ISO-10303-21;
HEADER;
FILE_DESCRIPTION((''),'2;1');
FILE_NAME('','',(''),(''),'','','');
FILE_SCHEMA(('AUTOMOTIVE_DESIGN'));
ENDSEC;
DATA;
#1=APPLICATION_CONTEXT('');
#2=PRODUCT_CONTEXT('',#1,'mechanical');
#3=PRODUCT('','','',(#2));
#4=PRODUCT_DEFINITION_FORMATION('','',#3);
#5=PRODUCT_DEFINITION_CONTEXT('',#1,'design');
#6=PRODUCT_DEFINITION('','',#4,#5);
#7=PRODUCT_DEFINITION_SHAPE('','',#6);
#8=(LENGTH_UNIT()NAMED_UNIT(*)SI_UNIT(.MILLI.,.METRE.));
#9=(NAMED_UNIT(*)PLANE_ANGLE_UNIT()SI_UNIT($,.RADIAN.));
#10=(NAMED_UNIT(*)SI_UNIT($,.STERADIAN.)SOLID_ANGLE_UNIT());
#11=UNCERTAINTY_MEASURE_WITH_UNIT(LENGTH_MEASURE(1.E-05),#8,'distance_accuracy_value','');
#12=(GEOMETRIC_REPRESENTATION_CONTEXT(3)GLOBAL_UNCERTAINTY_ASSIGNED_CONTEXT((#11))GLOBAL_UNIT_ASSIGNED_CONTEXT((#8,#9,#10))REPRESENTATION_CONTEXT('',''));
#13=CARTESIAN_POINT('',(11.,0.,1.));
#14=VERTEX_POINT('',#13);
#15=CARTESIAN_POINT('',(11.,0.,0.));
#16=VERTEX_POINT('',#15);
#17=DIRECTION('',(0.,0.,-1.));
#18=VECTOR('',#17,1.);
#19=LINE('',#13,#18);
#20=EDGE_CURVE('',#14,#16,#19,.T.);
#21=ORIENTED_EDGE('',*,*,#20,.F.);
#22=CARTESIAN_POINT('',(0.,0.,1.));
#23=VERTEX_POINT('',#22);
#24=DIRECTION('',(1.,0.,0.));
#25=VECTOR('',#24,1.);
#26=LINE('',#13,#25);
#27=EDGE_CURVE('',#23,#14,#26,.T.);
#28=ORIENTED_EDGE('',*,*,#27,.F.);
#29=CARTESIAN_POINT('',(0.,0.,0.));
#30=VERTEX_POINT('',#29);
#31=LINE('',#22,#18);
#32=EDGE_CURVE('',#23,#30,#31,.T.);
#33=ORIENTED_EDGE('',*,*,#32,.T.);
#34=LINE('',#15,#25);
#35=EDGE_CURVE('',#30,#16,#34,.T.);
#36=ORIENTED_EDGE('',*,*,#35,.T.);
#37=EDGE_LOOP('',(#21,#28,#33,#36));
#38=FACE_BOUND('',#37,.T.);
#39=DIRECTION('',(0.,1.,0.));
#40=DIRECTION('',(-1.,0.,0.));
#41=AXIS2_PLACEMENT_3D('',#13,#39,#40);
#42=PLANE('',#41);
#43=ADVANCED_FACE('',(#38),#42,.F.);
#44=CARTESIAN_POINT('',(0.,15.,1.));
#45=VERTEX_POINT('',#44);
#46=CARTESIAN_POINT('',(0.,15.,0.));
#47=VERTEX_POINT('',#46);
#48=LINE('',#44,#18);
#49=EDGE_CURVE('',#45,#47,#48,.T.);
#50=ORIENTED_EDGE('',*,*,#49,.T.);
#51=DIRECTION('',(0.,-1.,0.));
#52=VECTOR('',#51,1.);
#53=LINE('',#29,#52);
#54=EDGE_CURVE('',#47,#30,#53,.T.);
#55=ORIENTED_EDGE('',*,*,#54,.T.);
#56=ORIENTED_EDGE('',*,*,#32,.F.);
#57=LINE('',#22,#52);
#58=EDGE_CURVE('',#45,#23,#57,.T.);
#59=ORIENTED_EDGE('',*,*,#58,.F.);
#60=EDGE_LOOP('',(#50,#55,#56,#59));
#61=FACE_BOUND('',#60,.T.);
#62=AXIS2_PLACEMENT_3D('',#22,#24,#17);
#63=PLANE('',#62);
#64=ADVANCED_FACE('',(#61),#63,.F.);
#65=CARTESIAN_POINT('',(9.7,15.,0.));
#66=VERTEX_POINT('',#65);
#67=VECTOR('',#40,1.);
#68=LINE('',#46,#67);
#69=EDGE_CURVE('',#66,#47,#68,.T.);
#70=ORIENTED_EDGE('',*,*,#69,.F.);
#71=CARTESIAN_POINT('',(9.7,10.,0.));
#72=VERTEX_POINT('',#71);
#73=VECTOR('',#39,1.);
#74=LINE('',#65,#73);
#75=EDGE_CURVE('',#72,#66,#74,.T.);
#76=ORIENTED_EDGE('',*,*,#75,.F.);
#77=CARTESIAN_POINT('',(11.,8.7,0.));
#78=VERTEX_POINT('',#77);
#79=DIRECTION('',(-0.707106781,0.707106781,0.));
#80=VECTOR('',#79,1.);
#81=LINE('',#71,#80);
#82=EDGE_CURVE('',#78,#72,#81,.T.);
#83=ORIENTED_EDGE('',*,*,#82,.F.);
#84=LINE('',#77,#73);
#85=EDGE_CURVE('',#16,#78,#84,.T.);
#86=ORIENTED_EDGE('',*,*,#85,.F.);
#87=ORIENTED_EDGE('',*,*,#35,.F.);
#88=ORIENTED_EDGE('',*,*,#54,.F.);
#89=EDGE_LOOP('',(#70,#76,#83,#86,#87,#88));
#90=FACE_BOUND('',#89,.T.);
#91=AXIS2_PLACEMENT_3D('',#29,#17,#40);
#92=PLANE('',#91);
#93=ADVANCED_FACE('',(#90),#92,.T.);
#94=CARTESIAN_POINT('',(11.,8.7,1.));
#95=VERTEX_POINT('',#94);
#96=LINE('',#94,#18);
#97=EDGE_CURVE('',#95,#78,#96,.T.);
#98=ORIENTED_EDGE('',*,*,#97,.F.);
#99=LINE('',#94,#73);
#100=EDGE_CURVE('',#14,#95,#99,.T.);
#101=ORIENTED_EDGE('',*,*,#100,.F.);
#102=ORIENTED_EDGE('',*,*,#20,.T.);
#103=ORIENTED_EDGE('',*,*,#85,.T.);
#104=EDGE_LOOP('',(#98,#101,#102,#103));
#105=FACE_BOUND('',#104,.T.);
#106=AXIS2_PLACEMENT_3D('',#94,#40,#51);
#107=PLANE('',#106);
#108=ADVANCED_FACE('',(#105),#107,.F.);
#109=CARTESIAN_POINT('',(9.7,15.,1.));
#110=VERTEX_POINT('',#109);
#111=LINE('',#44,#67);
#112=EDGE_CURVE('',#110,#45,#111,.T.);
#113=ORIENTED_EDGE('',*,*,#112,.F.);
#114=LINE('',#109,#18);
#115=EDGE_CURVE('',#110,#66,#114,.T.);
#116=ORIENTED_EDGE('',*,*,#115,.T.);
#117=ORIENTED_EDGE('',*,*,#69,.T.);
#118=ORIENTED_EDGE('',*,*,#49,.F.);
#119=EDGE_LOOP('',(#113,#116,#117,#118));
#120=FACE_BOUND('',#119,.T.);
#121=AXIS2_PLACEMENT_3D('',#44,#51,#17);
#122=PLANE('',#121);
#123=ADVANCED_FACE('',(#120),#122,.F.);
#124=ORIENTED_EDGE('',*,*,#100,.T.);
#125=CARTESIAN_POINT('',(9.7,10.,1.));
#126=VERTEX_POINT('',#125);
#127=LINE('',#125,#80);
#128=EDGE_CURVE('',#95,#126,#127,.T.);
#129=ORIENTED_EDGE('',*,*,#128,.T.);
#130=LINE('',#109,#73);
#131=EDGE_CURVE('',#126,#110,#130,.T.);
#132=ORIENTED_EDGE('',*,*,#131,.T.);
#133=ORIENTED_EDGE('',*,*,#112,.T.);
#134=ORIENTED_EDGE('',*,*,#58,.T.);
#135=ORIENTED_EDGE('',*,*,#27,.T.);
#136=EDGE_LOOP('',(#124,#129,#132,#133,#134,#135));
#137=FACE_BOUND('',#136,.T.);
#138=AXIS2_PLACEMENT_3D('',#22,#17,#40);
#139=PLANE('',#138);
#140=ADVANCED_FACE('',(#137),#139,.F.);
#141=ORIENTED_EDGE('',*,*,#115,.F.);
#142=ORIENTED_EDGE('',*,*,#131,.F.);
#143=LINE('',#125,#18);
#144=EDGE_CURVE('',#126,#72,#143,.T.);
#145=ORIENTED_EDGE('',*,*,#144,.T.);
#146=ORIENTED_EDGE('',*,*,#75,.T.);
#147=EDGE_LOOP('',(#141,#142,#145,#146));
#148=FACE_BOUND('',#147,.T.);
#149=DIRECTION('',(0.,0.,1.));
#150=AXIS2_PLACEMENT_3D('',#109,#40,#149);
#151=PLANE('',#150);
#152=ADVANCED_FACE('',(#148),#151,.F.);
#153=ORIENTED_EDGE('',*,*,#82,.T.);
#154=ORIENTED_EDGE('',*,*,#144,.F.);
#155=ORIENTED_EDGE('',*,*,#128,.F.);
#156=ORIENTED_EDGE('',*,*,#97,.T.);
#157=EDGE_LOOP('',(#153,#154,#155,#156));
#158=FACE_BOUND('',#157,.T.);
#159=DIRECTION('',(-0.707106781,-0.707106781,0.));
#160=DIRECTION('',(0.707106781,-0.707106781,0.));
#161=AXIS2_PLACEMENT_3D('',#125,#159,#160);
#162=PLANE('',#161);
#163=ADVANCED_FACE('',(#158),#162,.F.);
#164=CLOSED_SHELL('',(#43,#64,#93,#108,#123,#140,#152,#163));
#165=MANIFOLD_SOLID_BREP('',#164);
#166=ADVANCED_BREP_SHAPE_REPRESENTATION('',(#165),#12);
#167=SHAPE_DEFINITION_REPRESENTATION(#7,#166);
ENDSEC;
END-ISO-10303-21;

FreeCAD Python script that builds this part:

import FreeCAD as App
import Part
import Sketcher
Q = App.Units.Quantity


def add_polygon(sketch, points):
    """Adds a closed chain of lines whose ends are joined by coincident constraints."""
    first, n = sketch.GeometryCount, len(points)
    for a, b in zip(points, points[1:] + points[:1]):
        sketch.addGeometry(Part.LineSegment(App.Vector(*a, 0), App.Vector(*b, 0)), False)
    for i in range(n):
        sketch.addConstraint(Sketcher.Constraint("Coincident", first + i, 2, first + (i + 1) % n, 1))

doc = App.newDocument("Part")
body = doc.addObject("PartDesign::Body", "Body")

# Sketch on XY plane
sketch1 = body.newObject("Sketcher::SketchObject", "Sketch")
sketch1.AttachmentSupport = (doc.getObject("XY_Plane"), [""])
sketch1.MapMode = "FlatFace"
add_polygon(sketch1, [(0, 15), (0, 0), (11, 0), (11, 8.7), (9.7, 10), (9.7, 15)])  # lines 0-5
sketch1.addConstraint(Sketcher.Constraint("Vertical", 0))
sketch1.addConstraint(Sketcher.Constraint("Horizontal", 1))
sketch1.addConstraint(Sketcher.Constraint("Vertical", 2))
sketch1.addConstraint(Sketcher.Constraint("Vertical", 4))
sketch1.addConstraint(Sketcher.Constraint("Horizontal", 5))
sketch1.addConstraint(Sketcher.Constraint("Coincident", 0, 2, -1, 1))
sketch1.addConstraint(Sketcher.Constraint("DistanceX", 1, 1, 1, 2, 11.0))
sketch1.addConstraint(Sketcher.Constraint("DistanceY", 0, 2, 0, 1, 15.0))
sketch1.addConstraint(Sketcher.Constraint("DistanceY", 4, 1, 4, 2, 5.0))
sketch1.addConstraint(Sketcher.Constraint("Angle", 3, Q("135 deg")))
sketch1.addConstraint(Sketcher.Constraint("DistanceX", 5, 2, 5, 1, 9.7))
pad1 = body.newObject("PartDesign::Pad", "Pad")
pad1.Profile = sketch1
pad1.Length = 1

doc.recompute()
